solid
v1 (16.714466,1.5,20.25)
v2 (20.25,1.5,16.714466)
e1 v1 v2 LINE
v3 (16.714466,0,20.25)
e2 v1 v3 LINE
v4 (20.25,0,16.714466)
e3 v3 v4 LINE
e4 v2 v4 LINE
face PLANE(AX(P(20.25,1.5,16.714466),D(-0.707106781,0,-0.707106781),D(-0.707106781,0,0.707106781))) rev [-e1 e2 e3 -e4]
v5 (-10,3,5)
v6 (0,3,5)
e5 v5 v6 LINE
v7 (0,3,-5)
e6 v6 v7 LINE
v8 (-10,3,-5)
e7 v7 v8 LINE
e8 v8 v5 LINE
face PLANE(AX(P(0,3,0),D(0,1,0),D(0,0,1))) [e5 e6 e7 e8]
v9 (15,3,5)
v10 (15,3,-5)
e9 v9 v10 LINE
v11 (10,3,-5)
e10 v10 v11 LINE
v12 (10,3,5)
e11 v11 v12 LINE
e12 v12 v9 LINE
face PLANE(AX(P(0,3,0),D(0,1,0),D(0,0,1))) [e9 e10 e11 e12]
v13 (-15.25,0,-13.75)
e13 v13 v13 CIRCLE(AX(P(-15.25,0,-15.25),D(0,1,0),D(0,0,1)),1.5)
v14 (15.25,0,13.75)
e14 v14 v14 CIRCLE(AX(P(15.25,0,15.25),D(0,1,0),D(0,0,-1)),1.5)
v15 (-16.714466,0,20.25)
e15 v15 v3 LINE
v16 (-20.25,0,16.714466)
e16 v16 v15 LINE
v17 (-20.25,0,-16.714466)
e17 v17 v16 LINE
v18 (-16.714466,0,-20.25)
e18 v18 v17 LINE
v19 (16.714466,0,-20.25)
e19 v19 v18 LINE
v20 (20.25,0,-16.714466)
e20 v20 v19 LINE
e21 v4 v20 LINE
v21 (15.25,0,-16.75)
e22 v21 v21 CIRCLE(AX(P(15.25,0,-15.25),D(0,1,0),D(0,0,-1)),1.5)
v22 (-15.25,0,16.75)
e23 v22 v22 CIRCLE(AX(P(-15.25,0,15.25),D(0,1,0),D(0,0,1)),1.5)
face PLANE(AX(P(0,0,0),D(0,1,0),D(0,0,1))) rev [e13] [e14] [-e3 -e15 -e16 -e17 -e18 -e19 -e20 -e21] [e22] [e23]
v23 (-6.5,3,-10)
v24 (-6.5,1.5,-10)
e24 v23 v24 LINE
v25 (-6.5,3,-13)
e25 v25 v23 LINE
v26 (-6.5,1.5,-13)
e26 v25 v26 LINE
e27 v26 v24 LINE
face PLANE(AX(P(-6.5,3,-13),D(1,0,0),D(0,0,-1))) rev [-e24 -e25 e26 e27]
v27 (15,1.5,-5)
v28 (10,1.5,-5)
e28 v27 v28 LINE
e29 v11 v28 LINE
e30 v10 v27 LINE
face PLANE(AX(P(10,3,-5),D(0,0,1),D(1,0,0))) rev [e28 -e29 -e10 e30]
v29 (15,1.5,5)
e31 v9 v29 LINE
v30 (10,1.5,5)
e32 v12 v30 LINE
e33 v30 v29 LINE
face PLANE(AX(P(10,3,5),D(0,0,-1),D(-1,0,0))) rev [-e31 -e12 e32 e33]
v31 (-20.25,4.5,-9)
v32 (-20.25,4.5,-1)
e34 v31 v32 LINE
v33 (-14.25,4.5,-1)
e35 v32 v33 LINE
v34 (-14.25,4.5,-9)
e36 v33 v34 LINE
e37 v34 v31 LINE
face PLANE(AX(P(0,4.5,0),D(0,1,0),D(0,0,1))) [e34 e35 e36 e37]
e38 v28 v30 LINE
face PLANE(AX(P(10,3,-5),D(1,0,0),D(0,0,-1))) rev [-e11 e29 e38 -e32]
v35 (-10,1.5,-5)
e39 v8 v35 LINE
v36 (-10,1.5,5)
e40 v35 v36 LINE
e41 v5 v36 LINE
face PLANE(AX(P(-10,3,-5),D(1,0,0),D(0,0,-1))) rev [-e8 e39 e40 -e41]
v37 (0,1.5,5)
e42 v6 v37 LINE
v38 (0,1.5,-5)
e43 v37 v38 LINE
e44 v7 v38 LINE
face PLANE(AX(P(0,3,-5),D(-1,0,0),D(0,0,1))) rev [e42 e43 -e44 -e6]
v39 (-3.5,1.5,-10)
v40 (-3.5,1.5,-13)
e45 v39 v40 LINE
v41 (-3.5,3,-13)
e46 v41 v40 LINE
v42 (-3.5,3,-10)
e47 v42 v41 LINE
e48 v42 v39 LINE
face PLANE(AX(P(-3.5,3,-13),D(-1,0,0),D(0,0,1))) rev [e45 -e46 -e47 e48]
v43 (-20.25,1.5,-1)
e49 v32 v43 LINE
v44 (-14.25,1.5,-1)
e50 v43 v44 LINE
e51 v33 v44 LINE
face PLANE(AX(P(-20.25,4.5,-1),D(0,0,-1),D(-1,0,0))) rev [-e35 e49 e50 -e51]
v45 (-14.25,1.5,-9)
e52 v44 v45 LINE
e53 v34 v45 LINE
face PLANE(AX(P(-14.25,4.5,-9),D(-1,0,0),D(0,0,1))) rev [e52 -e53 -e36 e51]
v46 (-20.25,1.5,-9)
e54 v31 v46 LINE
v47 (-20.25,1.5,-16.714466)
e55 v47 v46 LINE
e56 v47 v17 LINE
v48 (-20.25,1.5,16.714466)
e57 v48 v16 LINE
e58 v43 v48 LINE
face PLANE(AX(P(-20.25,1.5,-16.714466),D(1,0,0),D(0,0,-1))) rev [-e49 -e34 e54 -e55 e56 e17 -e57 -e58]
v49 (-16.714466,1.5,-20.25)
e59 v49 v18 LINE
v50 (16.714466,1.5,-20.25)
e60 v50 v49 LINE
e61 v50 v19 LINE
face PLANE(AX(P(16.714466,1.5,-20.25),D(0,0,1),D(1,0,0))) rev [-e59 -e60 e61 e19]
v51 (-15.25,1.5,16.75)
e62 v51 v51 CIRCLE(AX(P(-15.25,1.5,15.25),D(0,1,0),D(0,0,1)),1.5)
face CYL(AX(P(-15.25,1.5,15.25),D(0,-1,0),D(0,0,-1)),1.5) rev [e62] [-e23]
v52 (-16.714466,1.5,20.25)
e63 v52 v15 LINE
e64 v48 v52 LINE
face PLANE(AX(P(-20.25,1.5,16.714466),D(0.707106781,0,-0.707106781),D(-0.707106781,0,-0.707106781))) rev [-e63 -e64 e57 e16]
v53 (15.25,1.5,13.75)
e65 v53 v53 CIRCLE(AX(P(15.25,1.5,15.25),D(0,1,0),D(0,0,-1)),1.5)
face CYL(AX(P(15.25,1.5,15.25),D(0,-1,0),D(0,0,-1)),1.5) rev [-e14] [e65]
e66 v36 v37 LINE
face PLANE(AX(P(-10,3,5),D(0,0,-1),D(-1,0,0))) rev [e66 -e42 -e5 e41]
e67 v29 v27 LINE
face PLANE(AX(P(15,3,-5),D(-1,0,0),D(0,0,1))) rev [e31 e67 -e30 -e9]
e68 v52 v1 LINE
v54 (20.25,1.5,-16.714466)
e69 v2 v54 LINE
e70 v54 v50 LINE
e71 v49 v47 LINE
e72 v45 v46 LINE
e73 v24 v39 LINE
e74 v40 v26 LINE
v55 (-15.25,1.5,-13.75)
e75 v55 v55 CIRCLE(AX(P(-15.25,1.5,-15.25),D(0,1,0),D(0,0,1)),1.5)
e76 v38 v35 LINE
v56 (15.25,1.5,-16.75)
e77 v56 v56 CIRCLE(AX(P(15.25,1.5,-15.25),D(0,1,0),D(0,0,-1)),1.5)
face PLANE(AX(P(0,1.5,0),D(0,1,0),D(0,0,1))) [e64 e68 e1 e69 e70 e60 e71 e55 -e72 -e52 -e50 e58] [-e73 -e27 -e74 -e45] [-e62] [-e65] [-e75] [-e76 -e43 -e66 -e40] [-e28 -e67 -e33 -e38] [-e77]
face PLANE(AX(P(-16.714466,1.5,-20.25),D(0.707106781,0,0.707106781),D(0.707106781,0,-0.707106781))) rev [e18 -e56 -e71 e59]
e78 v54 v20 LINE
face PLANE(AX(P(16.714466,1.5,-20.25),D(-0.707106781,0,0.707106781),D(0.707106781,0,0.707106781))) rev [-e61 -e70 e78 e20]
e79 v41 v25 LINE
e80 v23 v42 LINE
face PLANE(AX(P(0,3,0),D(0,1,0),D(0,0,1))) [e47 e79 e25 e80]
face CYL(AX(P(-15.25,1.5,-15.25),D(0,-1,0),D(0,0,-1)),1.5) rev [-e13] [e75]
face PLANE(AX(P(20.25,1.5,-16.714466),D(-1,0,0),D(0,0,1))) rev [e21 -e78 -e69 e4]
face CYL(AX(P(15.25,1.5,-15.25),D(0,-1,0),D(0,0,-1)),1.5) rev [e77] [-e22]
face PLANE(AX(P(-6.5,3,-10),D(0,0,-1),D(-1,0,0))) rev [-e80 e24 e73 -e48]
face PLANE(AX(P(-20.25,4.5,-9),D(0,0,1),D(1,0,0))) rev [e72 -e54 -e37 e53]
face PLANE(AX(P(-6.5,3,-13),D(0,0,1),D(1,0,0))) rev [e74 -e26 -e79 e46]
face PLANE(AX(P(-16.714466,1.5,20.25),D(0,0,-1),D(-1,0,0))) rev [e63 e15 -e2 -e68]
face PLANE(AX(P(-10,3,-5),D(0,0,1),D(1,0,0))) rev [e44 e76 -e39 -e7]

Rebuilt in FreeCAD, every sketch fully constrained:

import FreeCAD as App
import Part
import Sketcher


def add_polygon(sketch, points):
    """Adds a closed chain of lines whose ends are joined by coincident constraints."""
    first, n = sketch.GeometryCount, len(points)
    for a, b in zip(points, points[1:] + points[:1]):
        sketch.addGeometry(Part.LineSegment(App.Vector(*a, 0), App.Vector(*b, 0)), False)
    for i in range(n):
        sketch.addConstraint(Sketcher.Constraint("Coincident", first + i, 2, first + (i + 1) % n, 1))

doc = App.newDocument("Part")
body = doc.addObject("PartDesign::Body", "Body")

# Sketch on XZ plane
sketch1 = body.newObject("Sketcher::SketchObject", "Sketch")
sketch1.AttachmentSupport = (doc.getObject("XZ_Plane"), [""])
sketch1.MapMode = "FlatFace"
add_polygon(sketch1, [(16.7, -20.2), (-16.7, -20.2), (-20.2, -16.7), (-20.2, 16.7), (-16.7, 20.2), (16.7, 20.2), (20.2, 16.7), (20.2, -16.7)])  # lines 0-7
sketch1.addGeometry(Part.Circle(App.Vector(-15.2, 15.2, 0), App.Vector(0, 0, 1), 1.5), False)  # 8
sketch1.addGeometry(Part.Circle(App.Vector(15.2, 15.2, 0), App.Vector(0, 0, 1), 1.5), False)  # 9
sketch1.addGeometry(Part.Circle(App.Vector(-15.2, -15.2, 0), App.Vector(0, 0, 1), 1.5), False)  # 10
sketch1.addGeometry(Part.Circle(App.Vector(15.2, -15.2, 0), App.Vector(0, 0, 1), 1.5), False)  # 11
sketch1.addConstraint([
    Sketcher.Constraint("Horizontal", 0),
    Sketcher.Constraint("Vertical", 2),
    Sketcher.Constraint("Horizontal", 4),
    Sketcher.Constraint("Vertical", 6),
    Sketcher.Constraint("Equal", 8, 9),
    Sketcher.Constraint("Equal", 9, 10),
    Sketcher.Constraint("Equal", 10, 11),
    Sketcher.Constraint("Symmetric", 9, 3, 10, 3, -1, 1),
    Sketcher.Constraint("Symmetric", 8, 3, 11, 3, -1, 1),
    Sketcher.Constraint("Symmetric", 0, 2, 4, 2, -1, 1),
    Sketcher.Constraint("Symmetric", 1, 2, 5, 2, -1, 1),
    Sketcher.Constraint("Symmetric", 8, 3, 9, 3, -2),
    Sketcher.Constraint("Perpendicular", 1, 3),
    Sketcher.Constraint("Perpendicular", 5, 7),
    Sketcher.Constraint("Horizontal", 2, 2, 5, 2),
    Sketcher.Constraint("Horizontal", 1, 2, 6, 2),
    Sketcher.Constraint("Vertical", 0, 2, 3, 2),
    Sketcher.Constraint("Equal", 4, 2),
    Sketcher.Constraint("Diameter", 8, 3.0),
    Sketcher.Constraint("Distance", 1, 5.0),
    Sketcher.Constraint("DistanceY", 0, 2, 10, 3, 5.0),
    Sketcher.Constraint("DistanceX", 1, 2, 10, 3, 5.0),
    Sketcher.Constraint("DistanceX", 8, 3, 9, 3, 30.5),
])
pad1 = body.newObject("PartDesign::Pad", "Pad")
pad1.Profile = sketch1
pad1.Length = 1.5
pad1.Reversed = True

# Sketch on XZ plane
sketch2 = body.newObject("Sketcher::SketchObject", "Sketch001")
sketch2.AttachmentSupport = (doc.getObject("XZ_Plane"), [""])
sketch2.MapMode = "FlatFace"
sketch2.AttachmentOffset = App.Placement(App.Vector(0, 0, -1.5), App.Rotation())
add_polygon(sketch2, [(-10, -5), (-10, 5), (0, 5), (0, -5)])  # lines 0-3
add_polygon(sketch2, [(10, -5), (10, 5), (15, 5), (15, -5)])  # lines 4-7
add_polygon(sketch2, [(-6.5, -13), (-6.5, -10), (-3.5, -10), (-3.5, -13)])  # lines 8-11
sketch2.addConstraint([
    Sketcher.Constraint("Vertical", 0),
    Sketcher.Constraint("Horizontal", 1),
    Sketcher.Constraint("Vertical", 2),
    Sketcher.Constraint("Horizontal", 3),
    Sketcher.Constraint("Vertical", 4),
    Sketcher.Constraint("Horizontal", 5),
    Sketcher.Constraint("Vertical", 6),
    Sketcher.Constraint("Horizontal", 7),
    Sketcher.Constraint("Vertical", 8),
    Sketcher.Constraint("Horizontal", 9),
    Sketcher.Constraint("Vertical", 10),
    Sketcher.Constraint("Horizontal", 11),
    Sketcher.Constraint("Symmetric", 1, 2, 2, 2, -1, 1),
    Sketcher.Constraint("Symmetric", 3, 2, 4, 2, -1, 1),
    Sketcher.Constraint("Horizontal", 3, 2, 6, 2),
    Sketcher.Constraint("Equal", 3, 0),
    Sketcher.Constraint("Equal", 11, 8),
    Sketcher.Constraint("DistanceX", 1, 1, 1, 2, 10.0),
    Sketcher.Constraint("DistanceX", 5, 1, 5, 2, 5.0),
    Sketcher.Constraint("DistanceX", 9, 1, 9, 2, 3.0),
    Sketcher.Constraint("DistanceY", 8, 2, -1, 1, 10.0),
    Sketcher.Constraint("DistanceX", 8, 2, -1, 1, 6.5),
])
pad2 = body.newObject("PartDesign::Pad", "Pad001")
pad2.Profile = sketch2
pad2.Length = 1.5
pad2.Reversed = True

# Sketch on XZ plane
sketch3 = body.newObject("Sketcher::SketchObject", "Sketch002")
sketch3.AttachmentSupport = (doc.getObject("XZ_Plane"), [""])
sketch3.MapMode = "FlatFace"
sketch3.AttachmentOffset = App.Placement(App.Vector(0, 0, -1.5), App.Rotation())
add_polygon(sketch3, [(-20, -9), (-20, -1), (-14, -1), (-14, -9)])  # lines 0-3
sketch3.addConstraint([
    Sketcher.Constraint("Vertical", 0),
    Sketcher.Constraint("Horizontal", 1),
    Sketcher.Constraint("Vertical", 2),
    Sketcher.Constraint("Horizontal", 3),
    Sketcher.Constraint("DistanceX", 1, 1, 1, 2, 6.0),
    Sketcher.Constraint("DistanceY", 0, 1, 0, 2, 8.0),
    Sketcher.Constraint("DistanceY", 0, 2, -1, 1, 1.0),
    Sketcher.Constraint("DistanceX", 0, 2, -1, 1, 20.25),
])
pad3 = body.newObject("PartDesign::Pad", "Pad002")
pad3.Profile = sketch3
pad3.Length = 3
pad3.Reversed = True

doc.recompute()
